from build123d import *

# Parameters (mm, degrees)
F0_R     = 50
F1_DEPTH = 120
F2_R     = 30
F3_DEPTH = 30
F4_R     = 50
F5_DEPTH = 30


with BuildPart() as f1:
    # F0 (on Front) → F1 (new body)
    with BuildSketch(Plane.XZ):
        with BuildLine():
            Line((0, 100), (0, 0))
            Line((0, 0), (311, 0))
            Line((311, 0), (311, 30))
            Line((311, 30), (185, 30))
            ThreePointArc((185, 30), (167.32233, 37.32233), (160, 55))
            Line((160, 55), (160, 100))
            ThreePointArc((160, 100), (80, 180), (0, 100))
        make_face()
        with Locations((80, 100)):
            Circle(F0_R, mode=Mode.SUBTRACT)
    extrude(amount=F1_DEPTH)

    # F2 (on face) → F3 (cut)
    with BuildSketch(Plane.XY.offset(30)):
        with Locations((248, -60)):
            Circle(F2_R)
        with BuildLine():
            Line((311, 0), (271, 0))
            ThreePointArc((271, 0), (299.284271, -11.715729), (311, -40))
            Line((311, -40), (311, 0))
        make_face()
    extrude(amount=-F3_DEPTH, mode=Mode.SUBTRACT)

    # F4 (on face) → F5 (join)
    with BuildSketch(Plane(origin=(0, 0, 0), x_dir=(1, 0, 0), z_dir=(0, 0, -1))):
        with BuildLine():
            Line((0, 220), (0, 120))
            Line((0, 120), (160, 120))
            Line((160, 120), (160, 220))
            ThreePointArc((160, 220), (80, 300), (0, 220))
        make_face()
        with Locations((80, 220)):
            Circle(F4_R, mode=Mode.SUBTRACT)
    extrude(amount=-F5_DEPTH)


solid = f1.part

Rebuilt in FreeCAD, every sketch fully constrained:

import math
import FreeCAD as App
import Part
import Sketcher

V = App.Vector

doc = App.newDocument("Part")
body = doc.addObject("PartDesign::Body", "Body")

# Sketch on XZ plane
sketch1 = doc.addObject("Sketcher::SketchObject", "Sketch")
body.addObject(sketch1)
sketch1.AttachmentSupport = (doc.XZ_Plane, [""])
sketch1.MapMode = "FlatFace"
sketch1.addGeometry([
    Part.LineSegment(V(0, 100, 0), V(0, 0, 0)),  # 0
    Part.LineSegment(V(0, 0, 0), V(311, 0, 0)),  # 1
    Part.LineSegment(V(311, 0, 0), V(311, 30, 0)),  # 2
    Part.LineSegment(V(311, 30, 0), V(185, 30, 0)),  # 3
    Part.ArcOfCircle(Part.Circle(V(184.999998, 54.999998, 0), V(0, 0, 1), 24.999998), math.radians(179.999996), math.radians(270.000004)),  # 4
    Part.LineSegment(V(160, 55, 0), V(160, 100, 0)),  # 5
    Part.ArcOfCircle(Part.Circle(V(80, 100, 0), V(0, 0, 1), 80), math.radians(0), math.radians(180)),  # 6
    Part.Circle(V(80, 100, 0), V(0, 0, 1), 50),  # 7
], False)
sketch1.addConstraint([
    Sketcher.Constraint("Coincident", 0, 2, 1, 1),
    Sketcher.Constraint("Coincident", 1, 2, 2, 1),
    Sketcher.Constraint("Coincident", 2, 2, 3, 1),
    Sketcher.Constraint("Tangent", 3, 2, 4, 2),
    Sketcher.Constraint("Tangent", 4, 1, 5, 1),
    Sketcher.Constraint("Tangent", 5, 2, 6, 1),
    Sketcher.Constraint("Tangent", 6, 2, 0, 1),
    Sketcher.Constraint("Vertical", 0),
    Sketcher.Constraint("Horizontal", 1),
    Sketcher.Constraint("Vertical", 2),
    Sketcher.Constraint("Horizontal", 3),
    Sketcher.Constraint("Vertical", 5),
    Sketcher.Constraint("Coincident", 0, 2, -1, 1),
    Sketcher.Constraint("Coincident", 7, 3, 6, 3),
    Sketcher.Constraint("Diameter", 7, 100.0),
    Sketcher.Constraint("Radius", 4, 24.999998),
    Sketcher.Constraint("Radius", 6, 80.0),
    Sketcher.Constraint("DistanceX", 1, 1, 1, 2, 311.0),
    Sketcher.Constraint("DistanceY", 0, 2, 0, 1, 100.0),
    Sketcher.Constraint("DistanceY", 2, 1, 2, 2, 30.0),
])
pad1 = doc.addObject("PartDesign::Pad", "Pad")
body.addObject(pad1)
pad1.Profile = sketch1
pad1.Length = 120

# Sketch on XY plane
sketch2 = doc.addObject("Sketcher::SketchObject", "Sketch001")
body.addObject(sketch2)
sketch2.AttachmentSupport = (doc.XY_Plane, [""])
sketch2.MapMode = "FlatFace"
sketch2.AttachmentOffset = App.Placement(V(0, 0, 30), App.Rotation())
sketch2.addGeometry([
    Part.Circle(V(248, -60, 0), V(0, 0, 1), 30),
    Part.LineSegment(V(311, 0, 0), V(271, 0, 0)),
    Part.ArcOfCircle(Part.Circle(V(270.999999, -40.000001, 0), V(0, 0, 1), 40.000001), math.radians(0.000001), math.radians(89.999999)),
    Part.LineSegment(V(311, -40, 0), V(311, 0, 0)),
], False)
sketch2.addConstraint([
    Sketcher.Constraint("Tangent", 1, 2, 2, 2),
    Sketcher.Constraint("Tangent", 2, 1, 3, 1),
    Sketcher.Constraint("Coincident", 3, 2, 1, 1),
    Sketcher.Constraint("Horizontal", 1),
    Sketcher.Constraint("Vertical", 3),
    Sketcher.Constraint("PointOnObject", 1, 2, -1),
    Sketcher.Constraint("Diameter", 0, 60.0),
    Sketcher.Constraint("Radius", 2, 40.000001),
    Sketcher.Constraint("DistanceX", -1, 1, 0, 3, 248.0),
    Sketcher.Constraint("DistanceY", 0, 3, -1, 1, 60.0),
    Sketcher.Constraint("DistanceX", -1, 1, 2, 3, 270.999999),
])
pocket1 = doc.addObject("PartDesign::Pocket", "Pocket")
body.addObject(pocket1)
pocket1.Profile = sketch2
pocket1.Length = 30

# Sketch on XY plane
sketch3 = doc.addObject("Sketcher::SketchObject", "Sketch002")
body.addObject(sketch3)
sketch3.AttachmentSupport = (doc.XY_Plane, [""])
sketch3.MapMode = "FlatFace"
sketch3.addGeometry([
    Part.LineSegment(V(0, -220, 0), V(0, -120, 0)),  # 0
    Part.LineSegment(V(0, -120, 0), V(160, -120, 0)),  # 1
    Part.LineSegment(V(160, -120, 0), V(160, -220, 0)),  # 2
    Part.ArcOfCircle(Part.Circle(V(80, -220, 0), V(0, 0, 1), 80), math.radians(180), math.radians(360)),  # 3
    Part.Circle(V(80, -220, 0), V(0, 0, 1), 50),  # 4
], False)
sketch3.addConstraint([
    Sketcher.Constraint("Coincident", 0, 2, 1, 1),
    Sketcher.Constraint("Coincident", 1, 2, 2, 1),
    Sketcher.Constraint("Tangent", 2, 2, 3, 2),
    Sketcher.Constraint("Tangent", 3, 1, 0, 1),
    Sketcher.Constraint("Vertical", 0),
    Sketcher.Constraint("Horizontal", 1),
    Sketcher.Constraint("Vertical", 2),
    Sketcher.Constraint("Coincident", 4, 3, 3, 3),
    Sketcher.Constraint("PointOnObject", 0, 2, -2),
    Sketcher.Constraint("Diameter", 4, 100.0),
    Sketcher.Constraint("Radius", 3, 80.0),
    Sketcher.Constraint("DistanceY", 0, 1, 0, 2, 100.0),
    Sketcher.Constraint("DistanceY", 3, 3, -1, 1, 220.0),
])
pad2 = doc.addObject("PartDesign::Pad", "Pad001")
body.addObject(pad2)
pad2.Profile = sketch3
pad2.Length = 30

doc.recompute()
